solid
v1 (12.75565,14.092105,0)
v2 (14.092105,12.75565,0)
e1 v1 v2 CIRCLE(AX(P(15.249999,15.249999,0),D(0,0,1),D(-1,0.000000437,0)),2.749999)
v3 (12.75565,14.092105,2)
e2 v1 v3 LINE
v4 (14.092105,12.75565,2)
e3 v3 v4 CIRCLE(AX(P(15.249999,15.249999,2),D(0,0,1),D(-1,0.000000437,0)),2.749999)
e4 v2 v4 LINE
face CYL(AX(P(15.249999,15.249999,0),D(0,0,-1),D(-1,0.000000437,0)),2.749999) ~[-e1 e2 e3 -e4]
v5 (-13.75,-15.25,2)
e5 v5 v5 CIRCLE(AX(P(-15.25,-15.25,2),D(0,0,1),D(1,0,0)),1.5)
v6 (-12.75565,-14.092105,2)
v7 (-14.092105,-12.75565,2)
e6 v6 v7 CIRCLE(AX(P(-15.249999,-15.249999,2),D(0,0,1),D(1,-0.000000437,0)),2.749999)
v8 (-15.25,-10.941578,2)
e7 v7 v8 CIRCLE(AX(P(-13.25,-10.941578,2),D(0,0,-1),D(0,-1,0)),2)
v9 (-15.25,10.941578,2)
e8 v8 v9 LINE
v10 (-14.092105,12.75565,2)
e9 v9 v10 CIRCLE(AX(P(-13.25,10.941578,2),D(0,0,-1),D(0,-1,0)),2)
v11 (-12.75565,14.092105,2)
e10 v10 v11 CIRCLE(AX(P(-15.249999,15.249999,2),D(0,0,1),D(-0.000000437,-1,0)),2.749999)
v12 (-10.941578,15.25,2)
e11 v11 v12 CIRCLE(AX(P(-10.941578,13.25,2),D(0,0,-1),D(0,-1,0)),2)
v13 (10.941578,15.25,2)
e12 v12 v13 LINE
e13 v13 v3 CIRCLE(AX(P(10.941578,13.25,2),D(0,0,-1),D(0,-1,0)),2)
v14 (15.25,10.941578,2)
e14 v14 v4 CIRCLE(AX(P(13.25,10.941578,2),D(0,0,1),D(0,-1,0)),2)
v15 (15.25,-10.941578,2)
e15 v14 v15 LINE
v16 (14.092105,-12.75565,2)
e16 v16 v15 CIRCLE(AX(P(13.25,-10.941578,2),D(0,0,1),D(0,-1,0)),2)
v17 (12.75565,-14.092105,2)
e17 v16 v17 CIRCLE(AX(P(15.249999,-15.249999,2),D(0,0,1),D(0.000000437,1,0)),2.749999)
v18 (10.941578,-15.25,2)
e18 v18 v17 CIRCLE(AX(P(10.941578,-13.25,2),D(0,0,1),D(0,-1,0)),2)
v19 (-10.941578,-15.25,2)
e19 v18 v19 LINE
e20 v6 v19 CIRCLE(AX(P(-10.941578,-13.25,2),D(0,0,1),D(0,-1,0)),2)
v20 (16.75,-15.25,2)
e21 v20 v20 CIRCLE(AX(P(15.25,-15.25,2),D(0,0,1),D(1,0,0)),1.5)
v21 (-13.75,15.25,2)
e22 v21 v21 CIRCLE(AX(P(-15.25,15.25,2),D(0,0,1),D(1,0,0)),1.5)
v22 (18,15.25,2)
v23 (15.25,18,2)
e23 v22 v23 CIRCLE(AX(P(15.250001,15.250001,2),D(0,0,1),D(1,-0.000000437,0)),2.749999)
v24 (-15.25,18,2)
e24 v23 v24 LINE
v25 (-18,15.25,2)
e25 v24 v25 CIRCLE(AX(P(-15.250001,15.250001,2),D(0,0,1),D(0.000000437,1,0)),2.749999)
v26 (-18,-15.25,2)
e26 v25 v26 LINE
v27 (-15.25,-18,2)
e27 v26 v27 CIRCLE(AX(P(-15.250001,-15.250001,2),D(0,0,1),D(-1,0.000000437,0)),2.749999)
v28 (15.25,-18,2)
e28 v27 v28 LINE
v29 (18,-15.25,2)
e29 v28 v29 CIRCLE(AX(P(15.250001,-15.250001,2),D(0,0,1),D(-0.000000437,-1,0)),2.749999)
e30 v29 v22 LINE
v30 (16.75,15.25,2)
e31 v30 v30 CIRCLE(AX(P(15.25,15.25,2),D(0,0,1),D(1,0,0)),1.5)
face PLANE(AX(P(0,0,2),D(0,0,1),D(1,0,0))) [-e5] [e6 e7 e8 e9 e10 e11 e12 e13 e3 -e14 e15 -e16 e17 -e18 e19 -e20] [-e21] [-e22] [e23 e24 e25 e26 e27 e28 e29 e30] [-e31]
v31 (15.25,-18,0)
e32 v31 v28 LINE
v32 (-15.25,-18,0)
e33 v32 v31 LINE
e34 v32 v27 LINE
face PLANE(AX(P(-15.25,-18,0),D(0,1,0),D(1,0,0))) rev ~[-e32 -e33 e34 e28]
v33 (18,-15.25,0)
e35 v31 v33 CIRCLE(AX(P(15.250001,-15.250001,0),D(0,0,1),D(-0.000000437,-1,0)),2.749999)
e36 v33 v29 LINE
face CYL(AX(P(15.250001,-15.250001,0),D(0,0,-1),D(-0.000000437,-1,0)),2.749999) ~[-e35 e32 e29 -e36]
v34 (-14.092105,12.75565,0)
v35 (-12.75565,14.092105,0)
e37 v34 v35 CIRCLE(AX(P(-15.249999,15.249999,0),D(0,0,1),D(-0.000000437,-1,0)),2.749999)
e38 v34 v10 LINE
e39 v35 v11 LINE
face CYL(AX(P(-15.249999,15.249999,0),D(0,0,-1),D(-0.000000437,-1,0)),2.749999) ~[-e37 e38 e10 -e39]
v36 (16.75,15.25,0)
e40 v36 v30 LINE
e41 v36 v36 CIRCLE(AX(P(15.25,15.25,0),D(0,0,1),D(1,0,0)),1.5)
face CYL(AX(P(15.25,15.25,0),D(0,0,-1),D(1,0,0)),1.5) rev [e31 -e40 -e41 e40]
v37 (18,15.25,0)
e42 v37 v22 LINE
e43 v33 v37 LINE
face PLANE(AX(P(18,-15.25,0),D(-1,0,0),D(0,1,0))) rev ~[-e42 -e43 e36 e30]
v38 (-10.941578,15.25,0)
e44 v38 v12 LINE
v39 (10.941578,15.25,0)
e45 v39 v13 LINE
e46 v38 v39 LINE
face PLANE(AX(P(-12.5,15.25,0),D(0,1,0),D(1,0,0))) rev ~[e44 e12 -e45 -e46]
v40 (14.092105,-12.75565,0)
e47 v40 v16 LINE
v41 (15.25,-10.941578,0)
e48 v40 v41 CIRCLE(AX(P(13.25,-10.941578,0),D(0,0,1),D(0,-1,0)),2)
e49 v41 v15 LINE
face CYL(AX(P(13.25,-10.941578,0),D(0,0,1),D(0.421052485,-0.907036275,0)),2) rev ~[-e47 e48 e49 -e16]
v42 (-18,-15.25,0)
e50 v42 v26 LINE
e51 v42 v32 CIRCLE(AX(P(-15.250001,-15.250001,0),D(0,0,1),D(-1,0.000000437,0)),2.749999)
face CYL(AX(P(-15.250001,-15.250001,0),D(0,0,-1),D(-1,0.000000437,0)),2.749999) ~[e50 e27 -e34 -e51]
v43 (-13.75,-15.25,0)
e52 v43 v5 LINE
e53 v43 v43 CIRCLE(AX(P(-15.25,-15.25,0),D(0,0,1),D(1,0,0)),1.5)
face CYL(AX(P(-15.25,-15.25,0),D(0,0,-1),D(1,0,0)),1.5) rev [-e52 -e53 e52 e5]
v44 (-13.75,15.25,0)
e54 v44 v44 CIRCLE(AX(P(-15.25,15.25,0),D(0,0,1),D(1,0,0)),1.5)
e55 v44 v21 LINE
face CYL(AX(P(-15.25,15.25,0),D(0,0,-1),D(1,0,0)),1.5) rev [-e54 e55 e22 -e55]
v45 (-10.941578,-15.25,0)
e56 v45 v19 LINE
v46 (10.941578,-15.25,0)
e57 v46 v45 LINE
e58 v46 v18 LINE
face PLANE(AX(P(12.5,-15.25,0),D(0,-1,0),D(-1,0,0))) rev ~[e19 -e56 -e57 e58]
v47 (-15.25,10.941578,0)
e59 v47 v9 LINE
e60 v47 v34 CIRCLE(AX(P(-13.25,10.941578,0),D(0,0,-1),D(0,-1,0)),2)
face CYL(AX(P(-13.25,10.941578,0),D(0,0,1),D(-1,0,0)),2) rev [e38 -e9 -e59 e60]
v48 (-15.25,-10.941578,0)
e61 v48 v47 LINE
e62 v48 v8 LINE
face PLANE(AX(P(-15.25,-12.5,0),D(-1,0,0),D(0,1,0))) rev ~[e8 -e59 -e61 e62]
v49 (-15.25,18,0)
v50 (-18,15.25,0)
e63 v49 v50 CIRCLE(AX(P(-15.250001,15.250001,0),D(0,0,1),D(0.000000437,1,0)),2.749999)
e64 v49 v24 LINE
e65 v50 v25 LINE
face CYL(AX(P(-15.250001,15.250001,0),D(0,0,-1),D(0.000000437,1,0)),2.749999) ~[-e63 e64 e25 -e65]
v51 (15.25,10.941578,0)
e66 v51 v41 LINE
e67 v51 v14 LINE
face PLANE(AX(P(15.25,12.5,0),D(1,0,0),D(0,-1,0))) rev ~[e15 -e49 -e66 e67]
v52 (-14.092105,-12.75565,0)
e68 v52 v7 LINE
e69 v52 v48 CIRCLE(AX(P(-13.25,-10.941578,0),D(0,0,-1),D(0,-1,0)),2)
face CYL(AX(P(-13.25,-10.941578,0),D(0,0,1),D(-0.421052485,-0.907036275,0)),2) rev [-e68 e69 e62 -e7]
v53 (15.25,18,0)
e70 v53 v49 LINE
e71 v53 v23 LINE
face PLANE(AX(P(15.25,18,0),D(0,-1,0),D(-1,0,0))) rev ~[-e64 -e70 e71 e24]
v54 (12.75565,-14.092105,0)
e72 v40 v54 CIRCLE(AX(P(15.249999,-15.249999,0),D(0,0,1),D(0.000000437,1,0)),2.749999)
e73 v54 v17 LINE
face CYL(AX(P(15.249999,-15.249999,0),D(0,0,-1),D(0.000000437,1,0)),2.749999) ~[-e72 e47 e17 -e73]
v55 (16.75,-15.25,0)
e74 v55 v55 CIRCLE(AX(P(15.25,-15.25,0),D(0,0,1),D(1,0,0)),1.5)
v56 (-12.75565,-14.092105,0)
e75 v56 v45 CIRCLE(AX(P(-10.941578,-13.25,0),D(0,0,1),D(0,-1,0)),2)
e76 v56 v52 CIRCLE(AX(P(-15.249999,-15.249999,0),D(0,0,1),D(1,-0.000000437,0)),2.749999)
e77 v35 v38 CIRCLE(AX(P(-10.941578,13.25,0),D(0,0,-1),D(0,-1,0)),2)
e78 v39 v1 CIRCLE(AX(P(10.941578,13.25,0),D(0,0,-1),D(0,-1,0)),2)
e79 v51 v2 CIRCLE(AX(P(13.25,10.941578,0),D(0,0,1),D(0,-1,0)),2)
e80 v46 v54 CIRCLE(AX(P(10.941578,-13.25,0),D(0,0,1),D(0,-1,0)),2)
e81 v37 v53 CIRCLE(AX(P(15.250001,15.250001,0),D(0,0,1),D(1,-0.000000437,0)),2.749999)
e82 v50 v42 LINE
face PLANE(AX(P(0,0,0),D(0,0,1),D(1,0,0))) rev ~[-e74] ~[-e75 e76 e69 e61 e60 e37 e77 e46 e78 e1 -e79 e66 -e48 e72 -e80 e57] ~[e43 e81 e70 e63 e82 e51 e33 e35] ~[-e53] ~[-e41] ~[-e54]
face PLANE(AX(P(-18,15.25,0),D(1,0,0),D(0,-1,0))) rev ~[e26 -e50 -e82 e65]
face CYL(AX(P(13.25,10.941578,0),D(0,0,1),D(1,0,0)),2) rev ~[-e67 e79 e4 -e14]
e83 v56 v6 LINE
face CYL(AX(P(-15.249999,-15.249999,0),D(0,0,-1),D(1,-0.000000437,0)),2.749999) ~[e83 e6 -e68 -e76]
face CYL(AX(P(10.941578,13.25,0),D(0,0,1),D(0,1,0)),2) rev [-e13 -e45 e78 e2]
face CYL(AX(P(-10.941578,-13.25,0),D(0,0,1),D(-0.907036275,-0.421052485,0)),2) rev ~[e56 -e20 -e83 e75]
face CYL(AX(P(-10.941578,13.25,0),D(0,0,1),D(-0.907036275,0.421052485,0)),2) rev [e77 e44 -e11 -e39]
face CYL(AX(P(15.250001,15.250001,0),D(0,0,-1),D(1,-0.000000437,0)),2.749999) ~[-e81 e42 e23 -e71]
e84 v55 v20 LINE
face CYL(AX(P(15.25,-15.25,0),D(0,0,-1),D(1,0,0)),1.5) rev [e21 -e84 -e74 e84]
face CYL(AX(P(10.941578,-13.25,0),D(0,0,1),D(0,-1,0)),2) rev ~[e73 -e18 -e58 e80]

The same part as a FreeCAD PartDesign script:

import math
import FreeCAD as App
import Part
import Sketcher

V = App.Vector


def edges_at(feature, points):
    """Names of the edges that pass closest to the given points."""
    edges = feature.Shape.Edges
    near = lambda p: min(range(len(edges)), key=lambda i: edges[i].distToShape(Part.Vertex(*p))[0])
    return sorted({f"Edge{near(p) + 1}" for p in points})

doc = App.newDocument("Part")
body = doc.addObject("PartDesign::Body", "Body")

# Sketch on XY plane
sketch1 = doc.addObject("Sketcher::SketchObject", "Sketch")
body.addObject(sketch1)
sketch1.AttachmentSupport = (doc.XY_Plane, [""])
sketch1.MapMode = "FlatFace"
sketch1.addGeometry([
    Part.LineSegment(V(15.25, 18, 0), V(-15.25, 18, 0)),  # 0
    Part.ArcOfCircle(Part.Circle(V(-15.250001, 15.250001, 0), V(0, 0, 1), 2.749999), math.radians(89.999975), math.radians(180.000025)),  # 1
    Part.LineSegment(V(-18, 15.25, 0), V(-18, -15.25, 0)),  # 2
    Part.ArcOfCircle(Part.Circle(V(-15.250001, -15.250001, 0), V(0, 0, 1), 2.749999), math.radians(179.999975), math.radians(270.000025)),  # 3
    Part.LineSegment(V(-15.25, -18, 0), V(15.25, -18, 0)),  # 4
    Part.ArcOfCircle(Part.Circle(V(15.250001, -15.250001, 0), V(0, 0, 1), 2.749999), math.radians(-90.000025), math.radians(0.000025)),  # 5
    Part.LineSegment(V(18, -15.25, 0), V(18, 15.25, 0)),  # 6
    Part.ArcOfCircle(Part.Circle(V(15.250001, 15.250001, 0), V(0, 0, 1), 2.749999), math.radians(-0.000025), math.radians(90.000025)),  # 7
    Part.Circle(V(-15.25, -15.25, 0), V(0, 0, 1), 1.5),  # 8
    Part.Circle(V(15.25, -15.25, 0), V(0, 0, 1), 1.5),  # 9
    Part.Circle(V(-15.25, 15.25, 0), V(0, 0, 1), 1.5),  # 10
    Part.ArcOfCircle(Part.Circle(V(-15.249999, -15.249999, 0), V(0, 0, 1), 2.749999), math.radians(-0.000025), math.radians(90.000025)),  # 11
    Part.LineSegment(V(-15.25, -12.5, 0), V(-15.25, 12.5, 0)),  # 12
    Part.ArcOfCircle(Part.Circle(V(-15.249999, 15.249999, 0), V(0, 0, 1), 2.749999), math.radians(-90.000025), math.radians(0.000025)),  # 13
    Part.LineSegment(V(-12.5, 15.25, 0), V(12.5, 15.25, 0)),  # 14
    Part.ArcOfCircle(Part.Circle(V(15.249999, 15.249999, 0), V(0, 0, 1), 2.749999), math.radians(179.999975), math.radians(270.000025)),  # 15
    Part.LineSegment(V(15.25, 12.5, 0), V(15.25, -12.5, 0)),  # 16
    Part.ArcOfCircle(Part.Circle(V(15.249999, -15.249999, 0), V(0, 0, 1), 2.749999), math.radians(89.999975), math.radians(180.000025)),  # 17
    Part.LineSegment(V(12.5, -15.25, 0), V(-12.5, -15.25, 0)),  # 18
    Part.Circle(V(15.25, 15.25, 0), V(0, 0, 1), 1.5),  # 19
], False)
sketch1.addConstraint([
    Sketcher.Constraint("Tangent", 0, 2, 1, 1),
    Sketcher.Constraint("Tangent", 1, 2, 2, 1),
    Sketcher.Constraint("Tangent", 2, 2, 3, 1),
    Sketcher.Constraint("Tangent", 3, 2, 4, 1),
    Sketcher.Constraint("Tangent", 4, 2, 5, 1),
    Sketcher.Constraint("Tangent", 5, 2, 6, 1),
    Sketcher.Constraint("Tangent", 6, 2, 7, 1),
    Sketcher.Constraint("Tangent", 7, 2, 0, 1),
    Sketcher.Constraint("Coincident", 11, 2, 12, 1),
    Sketcher.Constraint("Coincident", 12, 2, 13, 1),
    Sketcher.Constraint("Coincident", 13, 2, 14, 1),
    Sketcher.Constraint("Coincident", 14, 2, 15, 1),
    Sketcher.Constraint("Coincident", 15, 2, 16, 1),
    Sketcher.Constraint("Coincident", 16, 2, 17, 1),
    Sketcher.Constraint("Coincident", 17, 2, 18, 1),
    Sketcher.Constraint("Coincident", 18, 2, 11, 1),
    Sketcher.Constraint("Horizontal", 0),
    Sketcher.Constraint("Vertical", 2),
    Sketcher.Constraint("Horizontal", 4),
    Sketcher.Constraint("Vertical", 6),
    Sketcher.Constraint("Vertical", 12),
    Sketcher.Constraint("Horizontal", 14),
    Sketcher.Constraint("Vertical", 16),
    Sketcher.Constraint("Horizontal", 18),
    Sketcher.Constraint("Coincident", 8, 3, 3, 3),
    Sketcher.Constraint("Coincident", 9, 3, 5, 3),
    Sketcher.Constraint("Coincident", 10, 3, 1, 3),
    Sketcher.Constraint("Coincident", 11, 3, 3, 3),
    Sketcher.Constraint("Coincident", 13, 3, 1, 3),
    Sketcher.Constraint("Coincident", 15, 3, 7, 3),
    Sketcher.Constraint("Coincident", 17, 3, 5, 3),
    Sketcher.Constraint("Coincident", 19, 3, 7, 3),
    Sketcher.Constraint("Equal", 1, 3),
    Sketcher.Constraint("Equal", 3, 5),
    Sketcher.Constraint("Equal", 5, 7),
    Sketcher.Constraint("Equal", 8, 9),
    Sketcher.Constraint("Equal", 9, 10),
    Sketcher.Constraint("Equal", 7, 11),
    Sketcher.Constraint("Equal", 11, 13),
    Sketcher.Constraint("Equal", 13, 15),
    Sketcher.Constraint("Equal", 15, 17),
    Sketcher.Constraint("Equal", 10, 19),
    Sketcher.Constraint("Symmetric", 1, 3, 5, 3, -1, 1),
    Sketcher.Constraint("Horizontal", 6, 2, 13, 2),
    Sketcher.Constraint("Horizontal", 5, 2, 17, 2),
    Sketcher.Constraint("Vertical", 3, 2, 11, 2),
    Sketcher.Constraint("Vertical", 7, 2, 15, 2),
    Sketcher.Constraint("Equal", 4, 2),
    Sketcher.Constraint("Diameter", 8, 3.0),
    Sketcher.Constraint("DistanceX", 14, 1, 14, 2, 25.0),
    Sketcher.Constraint("Radius", 1, 2.749999),
])
pad1 = doc.addObject("PartDesign::Pad", "Pad")
body.addObject(pad1)
pad1.Profile = sketch1
pad1.Length = 2
doc.recompute()

fillet = doc.addObject("PartDesign::Fillet", "Fillet")
body.addObject(fillet)
fillet.Base = (pad1, edges_at(pad1, [
    (-15.25, 12.5, 1),
    (-12.5, 15.25, 1),
    (12.5, 15.25, 1),
    (15.25, 12.5, 1),
    (15.25, -12.5, 1),
    (12.5, -15.25, 1),
    (-15.25, -12.5, 1),
    (-12.5, -15.25, 1),
]))
fillet.Radius = 2

doc.recompute()
